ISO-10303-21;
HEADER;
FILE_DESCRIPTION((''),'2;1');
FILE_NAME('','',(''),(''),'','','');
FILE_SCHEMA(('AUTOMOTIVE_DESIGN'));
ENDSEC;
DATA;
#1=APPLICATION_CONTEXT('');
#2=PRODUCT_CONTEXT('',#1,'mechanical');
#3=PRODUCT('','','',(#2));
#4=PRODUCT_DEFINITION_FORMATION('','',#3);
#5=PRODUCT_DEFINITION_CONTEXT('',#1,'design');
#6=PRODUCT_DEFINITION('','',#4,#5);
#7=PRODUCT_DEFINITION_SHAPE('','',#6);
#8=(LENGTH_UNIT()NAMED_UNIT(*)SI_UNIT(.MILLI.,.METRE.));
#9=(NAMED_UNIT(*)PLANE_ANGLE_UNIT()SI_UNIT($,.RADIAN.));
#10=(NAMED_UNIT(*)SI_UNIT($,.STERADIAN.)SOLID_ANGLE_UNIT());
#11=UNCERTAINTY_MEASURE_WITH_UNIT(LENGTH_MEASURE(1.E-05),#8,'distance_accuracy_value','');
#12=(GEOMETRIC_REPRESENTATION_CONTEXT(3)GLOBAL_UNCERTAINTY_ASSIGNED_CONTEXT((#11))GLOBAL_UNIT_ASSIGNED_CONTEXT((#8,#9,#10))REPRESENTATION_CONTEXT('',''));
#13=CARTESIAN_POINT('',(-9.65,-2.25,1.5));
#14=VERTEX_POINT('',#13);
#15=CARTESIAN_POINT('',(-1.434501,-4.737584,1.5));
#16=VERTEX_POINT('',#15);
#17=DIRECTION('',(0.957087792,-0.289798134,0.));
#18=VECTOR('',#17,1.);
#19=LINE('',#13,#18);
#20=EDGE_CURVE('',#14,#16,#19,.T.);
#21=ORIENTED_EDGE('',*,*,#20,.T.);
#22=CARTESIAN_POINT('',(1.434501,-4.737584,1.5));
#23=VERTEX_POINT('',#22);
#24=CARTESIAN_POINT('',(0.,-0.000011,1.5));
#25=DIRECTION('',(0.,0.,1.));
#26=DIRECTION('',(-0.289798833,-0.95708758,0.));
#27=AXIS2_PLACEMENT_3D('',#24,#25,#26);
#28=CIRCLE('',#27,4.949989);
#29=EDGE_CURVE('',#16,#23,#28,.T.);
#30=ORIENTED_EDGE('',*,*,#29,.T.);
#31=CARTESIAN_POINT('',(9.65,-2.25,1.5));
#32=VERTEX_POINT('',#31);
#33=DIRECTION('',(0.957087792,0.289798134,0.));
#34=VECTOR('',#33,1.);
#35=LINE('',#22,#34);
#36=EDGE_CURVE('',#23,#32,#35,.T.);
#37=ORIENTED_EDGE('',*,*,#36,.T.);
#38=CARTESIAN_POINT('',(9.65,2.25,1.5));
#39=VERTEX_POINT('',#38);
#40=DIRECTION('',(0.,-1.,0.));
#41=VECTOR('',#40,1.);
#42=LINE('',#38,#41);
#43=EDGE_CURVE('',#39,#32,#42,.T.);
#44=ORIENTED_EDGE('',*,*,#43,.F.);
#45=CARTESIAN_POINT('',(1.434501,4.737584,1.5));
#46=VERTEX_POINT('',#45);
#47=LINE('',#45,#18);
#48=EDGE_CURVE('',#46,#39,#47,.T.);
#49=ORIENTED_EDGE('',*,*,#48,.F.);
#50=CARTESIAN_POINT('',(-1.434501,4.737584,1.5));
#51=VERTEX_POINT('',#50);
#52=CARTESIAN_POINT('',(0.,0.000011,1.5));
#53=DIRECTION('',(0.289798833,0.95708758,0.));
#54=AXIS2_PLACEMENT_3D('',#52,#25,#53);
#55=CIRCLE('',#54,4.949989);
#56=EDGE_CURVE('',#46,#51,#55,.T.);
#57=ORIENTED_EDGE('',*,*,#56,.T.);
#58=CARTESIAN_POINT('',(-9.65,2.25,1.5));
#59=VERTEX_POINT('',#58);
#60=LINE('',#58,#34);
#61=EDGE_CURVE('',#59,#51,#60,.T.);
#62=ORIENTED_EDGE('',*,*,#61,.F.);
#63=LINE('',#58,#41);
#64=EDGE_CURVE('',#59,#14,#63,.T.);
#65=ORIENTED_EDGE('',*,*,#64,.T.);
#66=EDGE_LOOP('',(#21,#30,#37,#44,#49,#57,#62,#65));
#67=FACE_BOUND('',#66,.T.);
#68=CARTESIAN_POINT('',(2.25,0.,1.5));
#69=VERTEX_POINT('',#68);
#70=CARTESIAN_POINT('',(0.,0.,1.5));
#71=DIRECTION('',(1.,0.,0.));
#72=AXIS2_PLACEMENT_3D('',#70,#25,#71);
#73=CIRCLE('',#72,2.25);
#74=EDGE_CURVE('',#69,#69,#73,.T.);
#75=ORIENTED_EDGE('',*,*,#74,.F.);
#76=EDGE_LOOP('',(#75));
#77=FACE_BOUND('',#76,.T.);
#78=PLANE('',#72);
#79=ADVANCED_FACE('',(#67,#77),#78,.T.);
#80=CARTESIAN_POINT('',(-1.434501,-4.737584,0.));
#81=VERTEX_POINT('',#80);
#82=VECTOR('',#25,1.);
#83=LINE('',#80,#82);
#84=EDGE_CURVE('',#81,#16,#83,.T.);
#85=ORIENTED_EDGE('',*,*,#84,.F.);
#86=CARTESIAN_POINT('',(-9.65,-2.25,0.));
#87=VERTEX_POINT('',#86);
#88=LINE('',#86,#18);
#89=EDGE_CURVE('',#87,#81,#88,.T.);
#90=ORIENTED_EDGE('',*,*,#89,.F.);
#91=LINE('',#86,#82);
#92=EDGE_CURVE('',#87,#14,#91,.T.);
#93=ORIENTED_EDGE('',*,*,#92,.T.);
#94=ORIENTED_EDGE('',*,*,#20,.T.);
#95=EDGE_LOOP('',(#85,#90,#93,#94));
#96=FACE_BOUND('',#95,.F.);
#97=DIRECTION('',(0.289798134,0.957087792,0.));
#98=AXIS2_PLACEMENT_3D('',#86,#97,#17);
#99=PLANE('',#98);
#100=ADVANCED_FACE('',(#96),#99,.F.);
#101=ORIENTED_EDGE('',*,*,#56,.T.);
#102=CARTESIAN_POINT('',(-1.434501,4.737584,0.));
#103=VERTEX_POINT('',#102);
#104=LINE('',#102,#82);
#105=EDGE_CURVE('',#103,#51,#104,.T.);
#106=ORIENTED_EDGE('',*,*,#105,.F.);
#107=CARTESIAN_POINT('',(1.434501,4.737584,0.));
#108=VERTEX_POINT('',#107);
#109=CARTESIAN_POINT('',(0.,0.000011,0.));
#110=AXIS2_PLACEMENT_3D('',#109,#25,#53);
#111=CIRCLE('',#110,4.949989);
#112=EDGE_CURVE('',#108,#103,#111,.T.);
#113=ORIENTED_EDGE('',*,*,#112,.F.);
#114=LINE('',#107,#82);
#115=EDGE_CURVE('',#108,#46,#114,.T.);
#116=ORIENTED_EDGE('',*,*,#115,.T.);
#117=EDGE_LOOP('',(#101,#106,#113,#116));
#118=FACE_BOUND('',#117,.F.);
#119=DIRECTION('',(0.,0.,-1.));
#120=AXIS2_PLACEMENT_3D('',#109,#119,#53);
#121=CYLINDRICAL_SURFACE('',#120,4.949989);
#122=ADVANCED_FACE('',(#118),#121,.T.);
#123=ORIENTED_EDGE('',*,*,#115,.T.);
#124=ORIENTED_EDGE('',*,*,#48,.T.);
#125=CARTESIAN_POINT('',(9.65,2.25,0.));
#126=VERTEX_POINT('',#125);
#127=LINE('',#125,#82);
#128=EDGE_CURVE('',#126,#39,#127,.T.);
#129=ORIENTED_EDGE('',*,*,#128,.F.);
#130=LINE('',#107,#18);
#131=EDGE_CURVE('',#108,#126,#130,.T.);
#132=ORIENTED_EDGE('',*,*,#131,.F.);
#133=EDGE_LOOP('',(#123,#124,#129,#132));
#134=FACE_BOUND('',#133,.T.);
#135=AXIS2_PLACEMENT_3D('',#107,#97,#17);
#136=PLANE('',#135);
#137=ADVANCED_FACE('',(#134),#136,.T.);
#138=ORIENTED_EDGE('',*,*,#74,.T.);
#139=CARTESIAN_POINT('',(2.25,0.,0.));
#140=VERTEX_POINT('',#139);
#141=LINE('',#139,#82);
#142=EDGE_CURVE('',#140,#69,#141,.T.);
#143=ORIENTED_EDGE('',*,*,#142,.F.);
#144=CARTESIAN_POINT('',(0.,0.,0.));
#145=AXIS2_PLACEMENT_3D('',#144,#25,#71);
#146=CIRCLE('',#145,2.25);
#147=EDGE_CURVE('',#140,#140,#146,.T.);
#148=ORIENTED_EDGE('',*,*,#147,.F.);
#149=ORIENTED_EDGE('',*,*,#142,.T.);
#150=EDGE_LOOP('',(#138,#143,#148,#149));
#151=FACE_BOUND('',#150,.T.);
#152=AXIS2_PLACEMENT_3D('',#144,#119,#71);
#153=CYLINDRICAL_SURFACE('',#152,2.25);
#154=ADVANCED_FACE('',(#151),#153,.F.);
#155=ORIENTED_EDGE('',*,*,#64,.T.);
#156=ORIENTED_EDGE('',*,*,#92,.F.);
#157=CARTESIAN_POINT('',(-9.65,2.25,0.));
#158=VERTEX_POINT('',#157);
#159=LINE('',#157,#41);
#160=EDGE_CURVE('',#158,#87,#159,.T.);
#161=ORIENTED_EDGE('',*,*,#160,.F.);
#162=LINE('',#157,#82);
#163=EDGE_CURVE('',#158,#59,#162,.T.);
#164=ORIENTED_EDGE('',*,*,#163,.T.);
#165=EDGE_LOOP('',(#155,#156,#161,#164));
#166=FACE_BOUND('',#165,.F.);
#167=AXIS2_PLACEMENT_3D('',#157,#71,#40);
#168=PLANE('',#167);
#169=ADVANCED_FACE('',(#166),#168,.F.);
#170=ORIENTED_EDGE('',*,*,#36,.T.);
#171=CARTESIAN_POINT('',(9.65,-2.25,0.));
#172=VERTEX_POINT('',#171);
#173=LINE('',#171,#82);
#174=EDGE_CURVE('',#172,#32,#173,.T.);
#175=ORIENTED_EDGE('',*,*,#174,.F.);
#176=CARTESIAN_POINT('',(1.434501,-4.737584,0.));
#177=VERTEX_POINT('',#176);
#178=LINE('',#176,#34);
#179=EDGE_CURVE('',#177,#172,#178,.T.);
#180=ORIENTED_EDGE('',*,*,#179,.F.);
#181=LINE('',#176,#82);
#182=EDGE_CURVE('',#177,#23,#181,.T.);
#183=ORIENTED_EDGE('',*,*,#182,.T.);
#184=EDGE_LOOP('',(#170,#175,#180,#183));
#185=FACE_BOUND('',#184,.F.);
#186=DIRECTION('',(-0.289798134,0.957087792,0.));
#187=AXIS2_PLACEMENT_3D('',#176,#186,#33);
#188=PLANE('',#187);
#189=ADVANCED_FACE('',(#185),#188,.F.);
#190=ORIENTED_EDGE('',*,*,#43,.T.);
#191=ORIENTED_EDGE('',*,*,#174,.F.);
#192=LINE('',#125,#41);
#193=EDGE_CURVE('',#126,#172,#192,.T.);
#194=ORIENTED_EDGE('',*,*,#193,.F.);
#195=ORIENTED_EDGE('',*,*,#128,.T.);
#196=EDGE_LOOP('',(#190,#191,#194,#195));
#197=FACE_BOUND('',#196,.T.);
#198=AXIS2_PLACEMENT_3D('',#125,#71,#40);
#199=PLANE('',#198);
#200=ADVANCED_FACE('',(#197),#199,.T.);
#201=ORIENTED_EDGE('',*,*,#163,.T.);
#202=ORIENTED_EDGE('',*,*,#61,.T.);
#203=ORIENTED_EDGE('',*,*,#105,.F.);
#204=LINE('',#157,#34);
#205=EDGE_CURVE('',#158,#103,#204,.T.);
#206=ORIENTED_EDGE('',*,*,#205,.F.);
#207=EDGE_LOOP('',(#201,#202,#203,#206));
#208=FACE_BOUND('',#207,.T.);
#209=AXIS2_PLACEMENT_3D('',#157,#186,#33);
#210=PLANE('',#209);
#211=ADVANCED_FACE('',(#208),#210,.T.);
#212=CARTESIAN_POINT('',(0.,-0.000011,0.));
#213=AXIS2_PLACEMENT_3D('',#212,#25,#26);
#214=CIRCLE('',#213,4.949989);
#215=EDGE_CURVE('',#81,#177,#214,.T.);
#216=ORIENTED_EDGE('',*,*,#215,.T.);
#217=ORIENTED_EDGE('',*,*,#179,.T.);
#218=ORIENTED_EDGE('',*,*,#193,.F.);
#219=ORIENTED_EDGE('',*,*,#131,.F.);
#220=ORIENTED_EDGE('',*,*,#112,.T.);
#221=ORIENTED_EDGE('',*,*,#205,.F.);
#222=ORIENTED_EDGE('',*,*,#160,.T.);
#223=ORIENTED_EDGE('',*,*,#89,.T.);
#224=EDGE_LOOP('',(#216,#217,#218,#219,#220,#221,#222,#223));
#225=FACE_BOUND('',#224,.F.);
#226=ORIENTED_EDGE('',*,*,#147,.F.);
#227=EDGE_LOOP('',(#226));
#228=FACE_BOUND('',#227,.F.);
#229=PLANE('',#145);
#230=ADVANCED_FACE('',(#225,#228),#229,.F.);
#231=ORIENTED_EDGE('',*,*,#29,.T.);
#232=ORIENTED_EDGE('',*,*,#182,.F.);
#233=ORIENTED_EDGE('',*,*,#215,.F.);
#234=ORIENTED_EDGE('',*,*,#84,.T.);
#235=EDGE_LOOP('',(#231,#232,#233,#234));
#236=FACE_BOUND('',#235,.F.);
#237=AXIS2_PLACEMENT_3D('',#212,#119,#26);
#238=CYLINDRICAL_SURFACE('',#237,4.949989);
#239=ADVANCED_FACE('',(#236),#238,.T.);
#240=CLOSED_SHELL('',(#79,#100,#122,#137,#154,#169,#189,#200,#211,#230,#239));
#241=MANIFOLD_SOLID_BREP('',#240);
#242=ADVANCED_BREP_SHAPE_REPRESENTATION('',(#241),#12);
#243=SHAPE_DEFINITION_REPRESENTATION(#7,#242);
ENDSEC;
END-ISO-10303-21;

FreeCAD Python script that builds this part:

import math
import FreeCAD as App
import Part
import Sketcher

V = App.Vector
Q = App.Units.Quantity

doc = App.newDocument("Part")
params = doc.addObject("Spreadsheet::Sheet", "Params")
for row, (alias, value) in enumerate([
    ("sketch1_diameter", "4.5 mm"),
    ("sketch1_height", "4.5 mm"),
    ("pad1_length", "1.5 mm"),
], start=1):
    params.set(f"A{row}", alias)
    params.set(f"B{row}", "=" + value)
    params.setAlias(f"B{row}", alias)

body = doc.addObject("PartDesign::Body", "Body")

sketch1 = body.newObject("Sketcher::SketchObject", "Sketch")
sketch1.AttachmentSupport = (doc.getObject("XY_Plane"), [""])
sketch1.MapMode = "FlatFace"
sketch1.addGeometry([
    Part.ArcOfCircle(Part.Circle(V(0, 0.000011, 0), V(0, 0, 1), 4.949989), math.radians(73.154087), math.radians(106.845913)),
    Part.LineSegment(V(-1.434501, 4.737584, 0), V(-9.65, 2.25, 0)),
    Part.LineSegment(V(-9.65, 2.25, 0), V(-9.65, -2.25, 0)),
    Part.LineSegment(V(-9.65, -2.25, 0), V(-1.434501, -4.737584, 0)),
    Part.ArcOfCircle(Part.Circle(V(0, -0.000011, 0), V(0, 0, 1), 4.949989), math.radians(-106.845913), math.radians(-73.154087)),
    Part.LineSegment(V(1.434501, -4.737584, 0), V(9.65, -2.25, 0)),
    Part.LineSegment(V(9.65, -2.25, 0), V(9.65, 2.25, 0)),
    Part.LineSegment(V(9.65, 2.25, 0), V(1.434501, 4.737584, 0)),
    Part.Circle(V(0, 0, 0), V(0, 0, 1), 2.25),
], False)
sketch1.addConstraint([
    Sketcher.Constraint("Tangent", 0, 2, 1, 1),
    Sketcher.Constraint("Coincident", 1, 2, 2, 1),
    Sketcher.Constraint("Coincident", 2, 2, 3, 1),
    Sketcher.Constraint("Tangent", 3, 2, 4, 1),
    Sketcher.Constraint("Tangent", 4, 2, 5, 1),
    Sketcher.Constraint("Coincident", 5, 2, 6, 1),
    Sketcher.Constraint("Coincident", 6, 2, 7, 1),
    Sketcher.Constraint("Tangent", 7, 2, 0, 1),
    Sketcher.Constraint("Vertical", 2),
    Sketcher.Constraint("Vertical", 6),
    Sketcher.Constraint("Coincident", 8, 3, -1, 1),
    Sketcher.Constraint("Equal", 0, 4),
    Sketcher.Constraint("Symmetric", 0, 3, 4, 3, -1, 1),
    Sketcher.Constraint("Symmetric", 1, 2, 5, 2, -1, 1),
    Sketcher.Constraint("Symmetric", 3, 2, 4, 2, -2),
    Sketcher.Constraint("Parallel", 3, 7),
    Sketcher.Constraint("Diameter", 8, Q("4.5 mm")),
    Sketcher.Constraint("DistanceY", 2, 2, 2, 1, Q("4.5 mm")),
    Sketcher.Constraint("DistanceX", 1, 2, -1, 1, Q("9.65 mm")),
    Sketcher.Constraint("Radius", 0, Q("4.949989 mm")),
    Sketcher.Constraint("DistanceX", 3, 2, 4, 2, Q("2.869002 mm")),
])
sketch1.setExpression("Constraints[16]", "Params.sketch1_diameter")
sketch1.setExpression("Constraints[17]", "Params.sketch1_height")
pad1 = body.newObject("PartDesign::Pad", "Pad")
pad1.Profile = sketch1
pad1.setExpression("Length", "Params.pad1_length")

doc.recompute()
